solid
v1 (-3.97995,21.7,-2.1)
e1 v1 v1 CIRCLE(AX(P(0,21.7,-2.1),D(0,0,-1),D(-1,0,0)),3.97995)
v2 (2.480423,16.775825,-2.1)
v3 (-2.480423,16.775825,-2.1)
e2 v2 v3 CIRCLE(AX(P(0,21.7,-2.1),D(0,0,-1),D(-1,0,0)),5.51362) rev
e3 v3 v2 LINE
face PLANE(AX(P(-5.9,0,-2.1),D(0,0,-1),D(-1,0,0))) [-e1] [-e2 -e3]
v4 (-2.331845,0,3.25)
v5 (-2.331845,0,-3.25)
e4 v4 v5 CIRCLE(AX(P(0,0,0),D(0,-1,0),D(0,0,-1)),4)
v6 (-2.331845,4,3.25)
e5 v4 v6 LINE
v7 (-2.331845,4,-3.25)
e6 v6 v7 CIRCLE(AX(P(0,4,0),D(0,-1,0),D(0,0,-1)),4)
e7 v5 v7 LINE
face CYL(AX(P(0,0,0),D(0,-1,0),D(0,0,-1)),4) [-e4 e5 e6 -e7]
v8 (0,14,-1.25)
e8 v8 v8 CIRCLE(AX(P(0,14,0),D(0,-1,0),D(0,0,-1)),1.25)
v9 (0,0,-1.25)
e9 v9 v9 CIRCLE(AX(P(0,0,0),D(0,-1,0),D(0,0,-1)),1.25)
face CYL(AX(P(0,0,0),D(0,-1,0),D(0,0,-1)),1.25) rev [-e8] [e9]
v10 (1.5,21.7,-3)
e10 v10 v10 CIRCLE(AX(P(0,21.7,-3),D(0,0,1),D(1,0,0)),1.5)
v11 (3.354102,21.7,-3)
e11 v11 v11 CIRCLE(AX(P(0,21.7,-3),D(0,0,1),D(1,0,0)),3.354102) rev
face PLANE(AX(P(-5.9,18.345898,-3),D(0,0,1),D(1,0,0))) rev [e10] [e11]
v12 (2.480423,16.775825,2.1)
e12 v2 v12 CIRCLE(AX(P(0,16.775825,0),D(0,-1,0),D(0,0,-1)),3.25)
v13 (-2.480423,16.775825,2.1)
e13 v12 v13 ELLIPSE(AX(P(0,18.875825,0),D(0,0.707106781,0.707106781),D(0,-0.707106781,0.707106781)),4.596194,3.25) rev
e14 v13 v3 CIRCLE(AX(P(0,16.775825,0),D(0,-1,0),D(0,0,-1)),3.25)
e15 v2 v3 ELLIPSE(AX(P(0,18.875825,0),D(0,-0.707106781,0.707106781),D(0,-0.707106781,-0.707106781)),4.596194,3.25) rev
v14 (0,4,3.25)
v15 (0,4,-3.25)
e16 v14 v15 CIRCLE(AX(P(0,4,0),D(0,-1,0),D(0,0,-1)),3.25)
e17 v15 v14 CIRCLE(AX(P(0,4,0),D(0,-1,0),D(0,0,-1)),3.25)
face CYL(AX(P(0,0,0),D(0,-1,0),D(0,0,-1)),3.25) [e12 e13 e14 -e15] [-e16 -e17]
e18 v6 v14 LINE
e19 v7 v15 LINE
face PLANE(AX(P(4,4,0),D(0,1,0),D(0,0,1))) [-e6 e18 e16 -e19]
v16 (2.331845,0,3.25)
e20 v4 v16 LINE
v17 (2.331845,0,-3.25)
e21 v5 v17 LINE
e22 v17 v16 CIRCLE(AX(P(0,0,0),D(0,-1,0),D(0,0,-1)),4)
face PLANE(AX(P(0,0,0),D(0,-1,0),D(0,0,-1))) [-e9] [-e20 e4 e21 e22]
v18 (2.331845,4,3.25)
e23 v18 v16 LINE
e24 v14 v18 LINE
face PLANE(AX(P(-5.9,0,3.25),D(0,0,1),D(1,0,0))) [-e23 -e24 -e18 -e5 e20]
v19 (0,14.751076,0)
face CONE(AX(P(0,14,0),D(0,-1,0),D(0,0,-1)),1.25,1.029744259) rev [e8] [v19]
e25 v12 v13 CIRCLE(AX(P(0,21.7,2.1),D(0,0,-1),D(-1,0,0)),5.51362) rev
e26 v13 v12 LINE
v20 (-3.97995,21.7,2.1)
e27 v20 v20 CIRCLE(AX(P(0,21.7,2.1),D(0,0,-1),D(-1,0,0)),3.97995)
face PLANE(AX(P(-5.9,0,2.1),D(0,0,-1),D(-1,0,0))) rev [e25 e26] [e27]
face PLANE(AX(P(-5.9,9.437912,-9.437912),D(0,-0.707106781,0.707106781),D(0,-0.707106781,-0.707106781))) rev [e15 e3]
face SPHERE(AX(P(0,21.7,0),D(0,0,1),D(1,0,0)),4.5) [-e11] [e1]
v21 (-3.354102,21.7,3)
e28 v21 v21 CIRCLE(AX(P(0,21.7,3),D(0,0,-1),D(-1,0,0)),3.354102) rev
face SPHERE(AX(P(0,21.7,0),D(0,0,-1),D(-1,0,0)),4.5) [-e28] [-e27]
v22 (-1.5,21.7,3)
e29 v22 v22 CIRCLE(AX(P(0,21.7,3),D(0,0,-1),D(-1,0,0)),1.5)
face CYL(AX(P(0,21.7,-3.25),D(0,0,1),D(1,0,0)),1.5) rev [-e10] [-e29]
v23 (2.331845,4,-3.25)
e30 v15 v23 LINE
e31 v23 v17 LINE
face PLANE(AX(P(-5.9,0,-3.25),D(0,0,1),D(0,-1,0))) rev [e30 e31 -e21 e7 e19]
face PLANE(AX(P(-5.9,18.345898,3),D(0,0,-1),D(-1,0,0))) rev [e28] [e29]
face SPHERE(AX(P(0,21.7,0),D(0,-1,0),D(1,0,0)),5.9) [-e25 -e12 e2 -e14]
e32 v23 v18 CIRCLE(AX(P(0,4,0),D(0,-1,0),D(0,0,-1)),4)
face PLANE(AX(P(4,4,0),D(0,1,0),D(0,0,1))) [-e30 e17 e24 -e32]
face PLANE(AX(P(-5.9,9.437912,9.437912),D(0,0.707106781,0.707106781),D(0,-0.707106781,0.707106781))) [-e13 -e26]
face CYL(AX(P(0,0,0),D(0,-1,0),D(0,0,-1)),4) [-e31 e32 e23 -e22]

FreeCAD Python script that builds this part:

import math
import FreeCAD as App
import Part
import Sketcher

V = App.Vector


def add_polygon(sketch, points):
    """Adds a closed chain of lines whose ends are joined by coincident constraints."""
    first, n = sketch.GeometryCount, len(points)
    for a, b in zip(points, points[1:] + points[:1]):
        sketch.addGeometry(Part.LineSegment(App.Vector(*a, 0), App.Vector(*b, 0)), False)
    for i in range(n):
        sketch.addConstraint(Sketcher.Constraint("Coincident", first + i, 2, first + (i + 1) % n, 1))

doc = App.newDocument("Part")
params = doc.addObject("Spreadsheet::Sheet", "Params")
for row, (alias, value) in enumerate([
    ("sketch1_radius", "5.9 mm"),
    ("sketch1_radius2", "4.5 mm"),
    ("sketch1_width", "4 mm"),
    ("sketch1_height", "17.2 mm"),
    ("sketch1_width2", "0.75 mm"),
    ("revolution_angle", "360 deg"),
    ("sketch2_width", "4 mm"),
    ("sketch2_height", "3.8 mm"),
    ("sketch2_width2", "1.15 mm"),
    ("sketch3_radius", "4.5 mm"),
    ("revolution2_angle", "360 deg"),
    ("sketch5_diameter", "3 mm"),
    ("sketch6_diameter", "2.5 mm"),
    ("hole_diameter", "2.5 mm"),
    ("hole_depth", "14 mm"),
], start=1):
    params.set(f"A{row}", alias)
    params.set(f"B{row}", "=" + value)
    params.setAlias(f"B{row}", alias)

body = doc.addObject("PartDesign::Body", "Body")

sketch1 = body.newObject("Sketcher::SketchObject", "Sketch")
sketch1.AttachmentSupport = (doc.getObject("XY_Plane"), [""])
sketch1.MapMode = "FlatFace"
sketch1.addGeometry([
    Part.LineSegment(V(0, 17.2, 0), V(0, 0, 0)),
    Part.LineSegment(V(0, 0, 0), V(4, 0, 0)),
    Part.LineSegment(V(4, 0, 0), V(4, 4, 0)),
    Part.LineSegment(V(4, 4, 0), V(3.25, 4, 0)),
    Part.LineSegment(V(3.25, 4, 0), V(3.25, 16.775825, 0)),
    Part.ArcOfCircle(Part.Circle(V(0, 21.7, 0), V(0, 0, 1), 5.9), math.radians(-56.574828), math.radians(90)),
    Part.LineSegment(V(0, 27.6, 0), V(0, 26.2, 0)),
    Part.ArcOfCircle(Part.Circle(V(0, 21.7, 0), V(0, 0, 1), 4.5), math.radians(-90), math.radians(90)),
], False)
sketch1.addConstraint([
    Sketcher.Constraint("Coincident", 0, 2, 1, 1),
    Sketcher.Constraint("Coincident", 1, 2, 2, 1),
    Sketcher.Constraint("Coincident", 2, 2, 3, 1),
    Sketcher.Constraint("Coincident", 3, 2, 4, 1),
    Sketcher.Constraint("Coincident", 4, 2, 5, 1),
    Sketcher.Constraint("Coincident", 5, 2, 6, 1),
    Sketcher.Constraint("Coincident", 6, 2, 7, 2),
    Sketcher.Constraint("Coincident", 7, 1, 0, 1),
    Sketcher.Constraint("Vertical", 0),
    Sketcher.Constraint("Horizontal", 1),
    Sketcher.Constraint("Vertical", 2),
    Sketcher.Constraint("Horizontal", 3),
    Sketcher.Constraint("Vertical", 4),
    Sketcher.Constraint("Vertical", 6),
    Sketcher.Constraint("Coincident", 0, 2, -1, 1),
    Sketcher.Constraint("Coincident", 7, 3, 5, 3),
    Sketcher.Constraint("PointOnObject", 5, 3, -2),
    Sketcher.Constraint("PointOnObject", 5, 2, -2),
    Sketcher.Constraint("Equal", 1, 2),
    Sketcher.Constraint("Radius", 5, 5.9),
    Sketcher.Constraint("Radius", 7, 4.5),
    Sketcher.Constraint("DistanceX", 1, 1, 1, 2, 4.0),
    Sketcher.Constraint("DistanceY", 0, 2, 0, 1, 17.2),
    Sketcher.Constraint("DistanceX", 3, 2, 3, 1, 0.75),
])
sketch1.setExpression("Constraints[19]", "Params.sketch1_radius")
sketch1.setExpression("Constraints[20]", "Params.sketch1_radius2")
sketch1.setExpression("Constraints[21]", "Params.sketch1_width")
sketch1.setExpression("Constraints[22]", "Params.sketch1_height")
sketch1.setExpression("Constraints[23]", "Params.sketch1_width2")
revolution = body.newObject("PartDesign::Revolution", "Revolution")
revolution.Profile = sketch1
revolution.ReferenceAxis = (sketch1, ["V_Axis"])
revolution.setExpression("Angle", "Params.revolution_angle")

sketch2 = body.newObject("Sketcher::SketchObject", "Sketch001")
sketch2.AttachmentSupport = (doc.getObject("YZ_Plane"), [""])
sketch2.MapMode = "FlatFace"
add_polygon(sketch2, [(27.6, 5.9), (16.775825, 5.9), (16.775825, 3.25), (15.625825, 3.25), (16.775825, 2.1), (27.6, 2.1)])
add_polygon(sketch2, [(27.6, -2.1), (16.775825, -2.1), (15.625825, -3.25), (16.775825, -3.25), (16.775825, -5.9), (27.6, -5.9)])
add_polygon(sketch2, [(4, -3.25), (0, -3.25), (0, -4), (4, -4)])
add_polygon(sketch2, [(4, 4), (0, 4), (0, 3.25), (4, 3.25)])
sketch2.addConstraint([
    Sketcher.Constraint("Horizontal", 0),
    Sketcher.Constraint("Vertical", 1),
    Sketcher.Constraint("Horizontal", 2),
    Sketcher.Constraint("Horizontal", 4),
    Sketcher.Constraint("Vertical", 5),
    Sketcher.Constraint("Horizontal", 6),
    Sketcher.Constraint("Horizontal", 8),
    Sketcher.Constraint("Vertical", 9),
    Sketcher.Constraint("Horizontal", 10),
    Sketcher.Constraint("Vertical", 11),
    Sketcher.Constraint("Horizontal", 12),
    Sketcher.Constraint("Vertical", 13),
    Sketcher.Constraint("Horizontal", 14),
    Sketcher.Constraint("Vertical", 15),
    Sketcher.Constraint("Horizontal", 16),
    Sketcher.Constraint("Vertical", 17),
    Sketcher.Constraint("Horizontal", 18),
    Sketcher.Constraint("Vertical", 19),
    Sketcher.Constraint("Symmetric", 13, 2, 16, 2, -1, 1),
    Sketcher.Constraint("Symmetric", 3, 2, 6, 2, -1),
    Sketcher.Constraint("Symmetric", 2, 2, 7, 2, -1),
    Sketcher.Constraint("Symmetric", 0, 2, 9, 2, -1),
    Sketcher.Constraint("Symmetric", 12, 2, 17, 2, -1),
    Sketcher.Constraint("Perpendicular", 3, 7),
    Sketcher.Constraint("Horizontal", 8, 2, 12, 2),
    Sketcher.Constraint("Vertical", 1, 2, 3, 2),
    Sketcher.Constraint("Vertical", 5, 2, 10, 2),
    Sketcher.Constraint("Vertical", 15, 2, 18, 2),
    Sketcher.Constraint("DistanceX", 12, 2, 12, 1, 4.0),
    Sketcher.Constraint("DistanceY", 5, 1, 5, 2, 3.8),
    Sketcher.Constraint("DistanceY", 13, 2, -1, 1, 4.0),
    Sketcher.Constraint("DistanceY", 6, 2, 0, 2, 8.0),
    Sketcher.Constraint("DistanceX", 2, 2, 2, 1, 1.15),
    Sketcher.Constraint("DistanceX", -1, 1, 4, 2, 27.6),
    Sketcher.Constraint("DistanceX", 0, 2, 0, 1, 10.824175),
])
sketch2.setExpression("Constraints[48]", "Params.sketch2_width")
sketch2.setExpression("Constraints[49]", "Params.sketch2_height")
sketch2.setExpression("Constraints[52]", "Params.sketch2_width2")
pocket1 = body.newObject("PartDesign::Pocket", "Pocket")
pocket1.Profile = sketch2
pocket1.Type = "ThroughAll"
pocket1.Midplane = True

sketch3 = body.newObject("Sketcher::SketchObject", "Sketch002")
sketch3.AttachmentSupport = (doc.getObject("XY_Plane"), [""])
sketch3.MapMode = "FlatFace"
sketch3.addGeometry([
    Part.LineSegment(V(0, 17.2, 0), V(0, 26.2, 0)),
    Part.ArcOfCircle(Part.Circle(V(0, 21.7, 0), V(0, 0, 1), 4.5), math.radians(90), math.radians(270)),
], False)
sketch3.addConstraint([
    Sketcher.Constraint("Coincident", 0, 1, 1, 2),
    Sketcher.Constraint("Coincident", 1, 1, 0, 2),
    Sketcher.Constraint("Vertical", 0),
    Sketcher.Constraint("PointOnObject", 1, 3, -2),
    Sketcher.Constraint("PointOnObject", 0, 1, -2),
    Sketcher.Constraint("Radius", 1, 4.5),
    Sketcher.Constraint("DistanceY", -1, 1, 1, 3, 21.7),
])
sketch3.setExpression("Constraints[5]", "Params.sketch3_radius")
revolution2 = body.newObject("PartDesign::Revolution", "Revolution001")
revolution2.Profile = sketch3
revolution2.ReferenceAxis = (sketch3, ["V_Axis"])
revolution2.setExpression("Angle", "Params.revolution2_angle")

sketch4 = body.newObject("Sketcher::SketchObject", "Sketch003")
sketch4.AttachmentSupport = (doc.getObject("YZ_Plane"), [""])
sketch4.MapMode = "FlatFace"
add_polygon(sketch4, [(25.089212, 4.877517), (18.345898, 4.877517), (18.345898, 3), (25.089212, 3)])
add_polygon(sketch4, [(25.089212, -3), (18.345898, -3), (18.345898, -4.877517), (25.089212, -4.877517)])
sketch4.addConstraint([
    Sketcher.Constraint("Horizontal", 0),
    Sketcher.Constraint("Vertical", 1),
    Sketcher.Constraint("Horizontal", 2),
    Sketcher.Constraint("Vertical", 3),
    Sketcher.Constraint("Horizontal", 4),
    Sketcher.Constraint("Vertical", 5),
    Sketcher.Constraint("Horizontal", 6),
    Sketcher.Constraint("Vertical", 7),
    Sketcher.Constraint("Symmetric", 1, 2, 4, 2, -1),
    Sketcher.Constraint("Symmetric", 3, 2, 6, 2, -1),
    Sketcher.Constraint("DistanceY", -1, 1, 1, 2, 3.0),
    Sketcher.Constraint("DistanceX", -1, 1, 0, 2, 18.345898),
    Sketcher.Constraint("DistanceX", 0, 2, 0, 1, 6.743314),
    Sketcher.Constraint("DistanceY", 1, 2, 1, 1, 1.877517),
])
pocket2 = body.newObject("PartDesign::Pocket", "Pocket001")
pocket2.Profile = sketch4
pocket2.Type = "ThroughAll"
pocket2.Midplane = True

sketch5 = body.newObject("Sketcher::SketchObject", "Sketch004")
sketch5.AttachmentSupport = (doc.getObject("XY_Plane"), [""])
sketch5.MapMode = "FlatFace"
sketch5.addGeometry(Part.Circle(V(0, 21.7, 0), V(0, 0, 1), 1.5), False)
sketch5.addConstraint([
    Sketcher.Constraint("PointOnObject", 0, 3, -2),
    Sketcher.Constraint("Diameter", 0, 3.0),
    Sketcher.Constraint("DistanceY", -1, 1, 0, 3, 21.7),
])
sketch5.setExpression("Constraints[1]", "Params.sketch5_diameter")
pocket3 = body.newObject("PartDesign::Pocket", "Pocket002")
pocket3.Profile = sketch5
pocket3.Type = "ThroughAll"
pocket3.Midplane = True

sketch6 = body.newObject("Sketcher::SketchObject", "Sketch005")
sketch6.AttachmentSupport = (doc.getObject("XZ_Plane"), [""])
sketch6.MapMode = "FlatFace"
sketch6.addGeometry(Part.Circle(V(0, 0, 0), V(0, 0, 1), 1.25), False)
sketch6.addConstraint([
    Sketcher.Constraint("Coincident", 0, 3, -1, 1),
    Sketcher.Constraint("Diameter", 0, 2.5),
])
sketch6.setExpression("Constraints[1]", "Params.sketch6_diameter")
doc.recompute()
hole = body.newObject("PartDesign::Hole", "Hole")
hole.Profile = sketch6
hole.ThreadType = "None"
hole.setExpression("Diameter", "Params.hole_diameter")
hole.DepthType = "Dimension"
hole.setExpression("Depth", "Params.hole_depth")
hole.DrillPoint = "Angled"
hole.DrillPointAngle = 118

doc.recompute()
